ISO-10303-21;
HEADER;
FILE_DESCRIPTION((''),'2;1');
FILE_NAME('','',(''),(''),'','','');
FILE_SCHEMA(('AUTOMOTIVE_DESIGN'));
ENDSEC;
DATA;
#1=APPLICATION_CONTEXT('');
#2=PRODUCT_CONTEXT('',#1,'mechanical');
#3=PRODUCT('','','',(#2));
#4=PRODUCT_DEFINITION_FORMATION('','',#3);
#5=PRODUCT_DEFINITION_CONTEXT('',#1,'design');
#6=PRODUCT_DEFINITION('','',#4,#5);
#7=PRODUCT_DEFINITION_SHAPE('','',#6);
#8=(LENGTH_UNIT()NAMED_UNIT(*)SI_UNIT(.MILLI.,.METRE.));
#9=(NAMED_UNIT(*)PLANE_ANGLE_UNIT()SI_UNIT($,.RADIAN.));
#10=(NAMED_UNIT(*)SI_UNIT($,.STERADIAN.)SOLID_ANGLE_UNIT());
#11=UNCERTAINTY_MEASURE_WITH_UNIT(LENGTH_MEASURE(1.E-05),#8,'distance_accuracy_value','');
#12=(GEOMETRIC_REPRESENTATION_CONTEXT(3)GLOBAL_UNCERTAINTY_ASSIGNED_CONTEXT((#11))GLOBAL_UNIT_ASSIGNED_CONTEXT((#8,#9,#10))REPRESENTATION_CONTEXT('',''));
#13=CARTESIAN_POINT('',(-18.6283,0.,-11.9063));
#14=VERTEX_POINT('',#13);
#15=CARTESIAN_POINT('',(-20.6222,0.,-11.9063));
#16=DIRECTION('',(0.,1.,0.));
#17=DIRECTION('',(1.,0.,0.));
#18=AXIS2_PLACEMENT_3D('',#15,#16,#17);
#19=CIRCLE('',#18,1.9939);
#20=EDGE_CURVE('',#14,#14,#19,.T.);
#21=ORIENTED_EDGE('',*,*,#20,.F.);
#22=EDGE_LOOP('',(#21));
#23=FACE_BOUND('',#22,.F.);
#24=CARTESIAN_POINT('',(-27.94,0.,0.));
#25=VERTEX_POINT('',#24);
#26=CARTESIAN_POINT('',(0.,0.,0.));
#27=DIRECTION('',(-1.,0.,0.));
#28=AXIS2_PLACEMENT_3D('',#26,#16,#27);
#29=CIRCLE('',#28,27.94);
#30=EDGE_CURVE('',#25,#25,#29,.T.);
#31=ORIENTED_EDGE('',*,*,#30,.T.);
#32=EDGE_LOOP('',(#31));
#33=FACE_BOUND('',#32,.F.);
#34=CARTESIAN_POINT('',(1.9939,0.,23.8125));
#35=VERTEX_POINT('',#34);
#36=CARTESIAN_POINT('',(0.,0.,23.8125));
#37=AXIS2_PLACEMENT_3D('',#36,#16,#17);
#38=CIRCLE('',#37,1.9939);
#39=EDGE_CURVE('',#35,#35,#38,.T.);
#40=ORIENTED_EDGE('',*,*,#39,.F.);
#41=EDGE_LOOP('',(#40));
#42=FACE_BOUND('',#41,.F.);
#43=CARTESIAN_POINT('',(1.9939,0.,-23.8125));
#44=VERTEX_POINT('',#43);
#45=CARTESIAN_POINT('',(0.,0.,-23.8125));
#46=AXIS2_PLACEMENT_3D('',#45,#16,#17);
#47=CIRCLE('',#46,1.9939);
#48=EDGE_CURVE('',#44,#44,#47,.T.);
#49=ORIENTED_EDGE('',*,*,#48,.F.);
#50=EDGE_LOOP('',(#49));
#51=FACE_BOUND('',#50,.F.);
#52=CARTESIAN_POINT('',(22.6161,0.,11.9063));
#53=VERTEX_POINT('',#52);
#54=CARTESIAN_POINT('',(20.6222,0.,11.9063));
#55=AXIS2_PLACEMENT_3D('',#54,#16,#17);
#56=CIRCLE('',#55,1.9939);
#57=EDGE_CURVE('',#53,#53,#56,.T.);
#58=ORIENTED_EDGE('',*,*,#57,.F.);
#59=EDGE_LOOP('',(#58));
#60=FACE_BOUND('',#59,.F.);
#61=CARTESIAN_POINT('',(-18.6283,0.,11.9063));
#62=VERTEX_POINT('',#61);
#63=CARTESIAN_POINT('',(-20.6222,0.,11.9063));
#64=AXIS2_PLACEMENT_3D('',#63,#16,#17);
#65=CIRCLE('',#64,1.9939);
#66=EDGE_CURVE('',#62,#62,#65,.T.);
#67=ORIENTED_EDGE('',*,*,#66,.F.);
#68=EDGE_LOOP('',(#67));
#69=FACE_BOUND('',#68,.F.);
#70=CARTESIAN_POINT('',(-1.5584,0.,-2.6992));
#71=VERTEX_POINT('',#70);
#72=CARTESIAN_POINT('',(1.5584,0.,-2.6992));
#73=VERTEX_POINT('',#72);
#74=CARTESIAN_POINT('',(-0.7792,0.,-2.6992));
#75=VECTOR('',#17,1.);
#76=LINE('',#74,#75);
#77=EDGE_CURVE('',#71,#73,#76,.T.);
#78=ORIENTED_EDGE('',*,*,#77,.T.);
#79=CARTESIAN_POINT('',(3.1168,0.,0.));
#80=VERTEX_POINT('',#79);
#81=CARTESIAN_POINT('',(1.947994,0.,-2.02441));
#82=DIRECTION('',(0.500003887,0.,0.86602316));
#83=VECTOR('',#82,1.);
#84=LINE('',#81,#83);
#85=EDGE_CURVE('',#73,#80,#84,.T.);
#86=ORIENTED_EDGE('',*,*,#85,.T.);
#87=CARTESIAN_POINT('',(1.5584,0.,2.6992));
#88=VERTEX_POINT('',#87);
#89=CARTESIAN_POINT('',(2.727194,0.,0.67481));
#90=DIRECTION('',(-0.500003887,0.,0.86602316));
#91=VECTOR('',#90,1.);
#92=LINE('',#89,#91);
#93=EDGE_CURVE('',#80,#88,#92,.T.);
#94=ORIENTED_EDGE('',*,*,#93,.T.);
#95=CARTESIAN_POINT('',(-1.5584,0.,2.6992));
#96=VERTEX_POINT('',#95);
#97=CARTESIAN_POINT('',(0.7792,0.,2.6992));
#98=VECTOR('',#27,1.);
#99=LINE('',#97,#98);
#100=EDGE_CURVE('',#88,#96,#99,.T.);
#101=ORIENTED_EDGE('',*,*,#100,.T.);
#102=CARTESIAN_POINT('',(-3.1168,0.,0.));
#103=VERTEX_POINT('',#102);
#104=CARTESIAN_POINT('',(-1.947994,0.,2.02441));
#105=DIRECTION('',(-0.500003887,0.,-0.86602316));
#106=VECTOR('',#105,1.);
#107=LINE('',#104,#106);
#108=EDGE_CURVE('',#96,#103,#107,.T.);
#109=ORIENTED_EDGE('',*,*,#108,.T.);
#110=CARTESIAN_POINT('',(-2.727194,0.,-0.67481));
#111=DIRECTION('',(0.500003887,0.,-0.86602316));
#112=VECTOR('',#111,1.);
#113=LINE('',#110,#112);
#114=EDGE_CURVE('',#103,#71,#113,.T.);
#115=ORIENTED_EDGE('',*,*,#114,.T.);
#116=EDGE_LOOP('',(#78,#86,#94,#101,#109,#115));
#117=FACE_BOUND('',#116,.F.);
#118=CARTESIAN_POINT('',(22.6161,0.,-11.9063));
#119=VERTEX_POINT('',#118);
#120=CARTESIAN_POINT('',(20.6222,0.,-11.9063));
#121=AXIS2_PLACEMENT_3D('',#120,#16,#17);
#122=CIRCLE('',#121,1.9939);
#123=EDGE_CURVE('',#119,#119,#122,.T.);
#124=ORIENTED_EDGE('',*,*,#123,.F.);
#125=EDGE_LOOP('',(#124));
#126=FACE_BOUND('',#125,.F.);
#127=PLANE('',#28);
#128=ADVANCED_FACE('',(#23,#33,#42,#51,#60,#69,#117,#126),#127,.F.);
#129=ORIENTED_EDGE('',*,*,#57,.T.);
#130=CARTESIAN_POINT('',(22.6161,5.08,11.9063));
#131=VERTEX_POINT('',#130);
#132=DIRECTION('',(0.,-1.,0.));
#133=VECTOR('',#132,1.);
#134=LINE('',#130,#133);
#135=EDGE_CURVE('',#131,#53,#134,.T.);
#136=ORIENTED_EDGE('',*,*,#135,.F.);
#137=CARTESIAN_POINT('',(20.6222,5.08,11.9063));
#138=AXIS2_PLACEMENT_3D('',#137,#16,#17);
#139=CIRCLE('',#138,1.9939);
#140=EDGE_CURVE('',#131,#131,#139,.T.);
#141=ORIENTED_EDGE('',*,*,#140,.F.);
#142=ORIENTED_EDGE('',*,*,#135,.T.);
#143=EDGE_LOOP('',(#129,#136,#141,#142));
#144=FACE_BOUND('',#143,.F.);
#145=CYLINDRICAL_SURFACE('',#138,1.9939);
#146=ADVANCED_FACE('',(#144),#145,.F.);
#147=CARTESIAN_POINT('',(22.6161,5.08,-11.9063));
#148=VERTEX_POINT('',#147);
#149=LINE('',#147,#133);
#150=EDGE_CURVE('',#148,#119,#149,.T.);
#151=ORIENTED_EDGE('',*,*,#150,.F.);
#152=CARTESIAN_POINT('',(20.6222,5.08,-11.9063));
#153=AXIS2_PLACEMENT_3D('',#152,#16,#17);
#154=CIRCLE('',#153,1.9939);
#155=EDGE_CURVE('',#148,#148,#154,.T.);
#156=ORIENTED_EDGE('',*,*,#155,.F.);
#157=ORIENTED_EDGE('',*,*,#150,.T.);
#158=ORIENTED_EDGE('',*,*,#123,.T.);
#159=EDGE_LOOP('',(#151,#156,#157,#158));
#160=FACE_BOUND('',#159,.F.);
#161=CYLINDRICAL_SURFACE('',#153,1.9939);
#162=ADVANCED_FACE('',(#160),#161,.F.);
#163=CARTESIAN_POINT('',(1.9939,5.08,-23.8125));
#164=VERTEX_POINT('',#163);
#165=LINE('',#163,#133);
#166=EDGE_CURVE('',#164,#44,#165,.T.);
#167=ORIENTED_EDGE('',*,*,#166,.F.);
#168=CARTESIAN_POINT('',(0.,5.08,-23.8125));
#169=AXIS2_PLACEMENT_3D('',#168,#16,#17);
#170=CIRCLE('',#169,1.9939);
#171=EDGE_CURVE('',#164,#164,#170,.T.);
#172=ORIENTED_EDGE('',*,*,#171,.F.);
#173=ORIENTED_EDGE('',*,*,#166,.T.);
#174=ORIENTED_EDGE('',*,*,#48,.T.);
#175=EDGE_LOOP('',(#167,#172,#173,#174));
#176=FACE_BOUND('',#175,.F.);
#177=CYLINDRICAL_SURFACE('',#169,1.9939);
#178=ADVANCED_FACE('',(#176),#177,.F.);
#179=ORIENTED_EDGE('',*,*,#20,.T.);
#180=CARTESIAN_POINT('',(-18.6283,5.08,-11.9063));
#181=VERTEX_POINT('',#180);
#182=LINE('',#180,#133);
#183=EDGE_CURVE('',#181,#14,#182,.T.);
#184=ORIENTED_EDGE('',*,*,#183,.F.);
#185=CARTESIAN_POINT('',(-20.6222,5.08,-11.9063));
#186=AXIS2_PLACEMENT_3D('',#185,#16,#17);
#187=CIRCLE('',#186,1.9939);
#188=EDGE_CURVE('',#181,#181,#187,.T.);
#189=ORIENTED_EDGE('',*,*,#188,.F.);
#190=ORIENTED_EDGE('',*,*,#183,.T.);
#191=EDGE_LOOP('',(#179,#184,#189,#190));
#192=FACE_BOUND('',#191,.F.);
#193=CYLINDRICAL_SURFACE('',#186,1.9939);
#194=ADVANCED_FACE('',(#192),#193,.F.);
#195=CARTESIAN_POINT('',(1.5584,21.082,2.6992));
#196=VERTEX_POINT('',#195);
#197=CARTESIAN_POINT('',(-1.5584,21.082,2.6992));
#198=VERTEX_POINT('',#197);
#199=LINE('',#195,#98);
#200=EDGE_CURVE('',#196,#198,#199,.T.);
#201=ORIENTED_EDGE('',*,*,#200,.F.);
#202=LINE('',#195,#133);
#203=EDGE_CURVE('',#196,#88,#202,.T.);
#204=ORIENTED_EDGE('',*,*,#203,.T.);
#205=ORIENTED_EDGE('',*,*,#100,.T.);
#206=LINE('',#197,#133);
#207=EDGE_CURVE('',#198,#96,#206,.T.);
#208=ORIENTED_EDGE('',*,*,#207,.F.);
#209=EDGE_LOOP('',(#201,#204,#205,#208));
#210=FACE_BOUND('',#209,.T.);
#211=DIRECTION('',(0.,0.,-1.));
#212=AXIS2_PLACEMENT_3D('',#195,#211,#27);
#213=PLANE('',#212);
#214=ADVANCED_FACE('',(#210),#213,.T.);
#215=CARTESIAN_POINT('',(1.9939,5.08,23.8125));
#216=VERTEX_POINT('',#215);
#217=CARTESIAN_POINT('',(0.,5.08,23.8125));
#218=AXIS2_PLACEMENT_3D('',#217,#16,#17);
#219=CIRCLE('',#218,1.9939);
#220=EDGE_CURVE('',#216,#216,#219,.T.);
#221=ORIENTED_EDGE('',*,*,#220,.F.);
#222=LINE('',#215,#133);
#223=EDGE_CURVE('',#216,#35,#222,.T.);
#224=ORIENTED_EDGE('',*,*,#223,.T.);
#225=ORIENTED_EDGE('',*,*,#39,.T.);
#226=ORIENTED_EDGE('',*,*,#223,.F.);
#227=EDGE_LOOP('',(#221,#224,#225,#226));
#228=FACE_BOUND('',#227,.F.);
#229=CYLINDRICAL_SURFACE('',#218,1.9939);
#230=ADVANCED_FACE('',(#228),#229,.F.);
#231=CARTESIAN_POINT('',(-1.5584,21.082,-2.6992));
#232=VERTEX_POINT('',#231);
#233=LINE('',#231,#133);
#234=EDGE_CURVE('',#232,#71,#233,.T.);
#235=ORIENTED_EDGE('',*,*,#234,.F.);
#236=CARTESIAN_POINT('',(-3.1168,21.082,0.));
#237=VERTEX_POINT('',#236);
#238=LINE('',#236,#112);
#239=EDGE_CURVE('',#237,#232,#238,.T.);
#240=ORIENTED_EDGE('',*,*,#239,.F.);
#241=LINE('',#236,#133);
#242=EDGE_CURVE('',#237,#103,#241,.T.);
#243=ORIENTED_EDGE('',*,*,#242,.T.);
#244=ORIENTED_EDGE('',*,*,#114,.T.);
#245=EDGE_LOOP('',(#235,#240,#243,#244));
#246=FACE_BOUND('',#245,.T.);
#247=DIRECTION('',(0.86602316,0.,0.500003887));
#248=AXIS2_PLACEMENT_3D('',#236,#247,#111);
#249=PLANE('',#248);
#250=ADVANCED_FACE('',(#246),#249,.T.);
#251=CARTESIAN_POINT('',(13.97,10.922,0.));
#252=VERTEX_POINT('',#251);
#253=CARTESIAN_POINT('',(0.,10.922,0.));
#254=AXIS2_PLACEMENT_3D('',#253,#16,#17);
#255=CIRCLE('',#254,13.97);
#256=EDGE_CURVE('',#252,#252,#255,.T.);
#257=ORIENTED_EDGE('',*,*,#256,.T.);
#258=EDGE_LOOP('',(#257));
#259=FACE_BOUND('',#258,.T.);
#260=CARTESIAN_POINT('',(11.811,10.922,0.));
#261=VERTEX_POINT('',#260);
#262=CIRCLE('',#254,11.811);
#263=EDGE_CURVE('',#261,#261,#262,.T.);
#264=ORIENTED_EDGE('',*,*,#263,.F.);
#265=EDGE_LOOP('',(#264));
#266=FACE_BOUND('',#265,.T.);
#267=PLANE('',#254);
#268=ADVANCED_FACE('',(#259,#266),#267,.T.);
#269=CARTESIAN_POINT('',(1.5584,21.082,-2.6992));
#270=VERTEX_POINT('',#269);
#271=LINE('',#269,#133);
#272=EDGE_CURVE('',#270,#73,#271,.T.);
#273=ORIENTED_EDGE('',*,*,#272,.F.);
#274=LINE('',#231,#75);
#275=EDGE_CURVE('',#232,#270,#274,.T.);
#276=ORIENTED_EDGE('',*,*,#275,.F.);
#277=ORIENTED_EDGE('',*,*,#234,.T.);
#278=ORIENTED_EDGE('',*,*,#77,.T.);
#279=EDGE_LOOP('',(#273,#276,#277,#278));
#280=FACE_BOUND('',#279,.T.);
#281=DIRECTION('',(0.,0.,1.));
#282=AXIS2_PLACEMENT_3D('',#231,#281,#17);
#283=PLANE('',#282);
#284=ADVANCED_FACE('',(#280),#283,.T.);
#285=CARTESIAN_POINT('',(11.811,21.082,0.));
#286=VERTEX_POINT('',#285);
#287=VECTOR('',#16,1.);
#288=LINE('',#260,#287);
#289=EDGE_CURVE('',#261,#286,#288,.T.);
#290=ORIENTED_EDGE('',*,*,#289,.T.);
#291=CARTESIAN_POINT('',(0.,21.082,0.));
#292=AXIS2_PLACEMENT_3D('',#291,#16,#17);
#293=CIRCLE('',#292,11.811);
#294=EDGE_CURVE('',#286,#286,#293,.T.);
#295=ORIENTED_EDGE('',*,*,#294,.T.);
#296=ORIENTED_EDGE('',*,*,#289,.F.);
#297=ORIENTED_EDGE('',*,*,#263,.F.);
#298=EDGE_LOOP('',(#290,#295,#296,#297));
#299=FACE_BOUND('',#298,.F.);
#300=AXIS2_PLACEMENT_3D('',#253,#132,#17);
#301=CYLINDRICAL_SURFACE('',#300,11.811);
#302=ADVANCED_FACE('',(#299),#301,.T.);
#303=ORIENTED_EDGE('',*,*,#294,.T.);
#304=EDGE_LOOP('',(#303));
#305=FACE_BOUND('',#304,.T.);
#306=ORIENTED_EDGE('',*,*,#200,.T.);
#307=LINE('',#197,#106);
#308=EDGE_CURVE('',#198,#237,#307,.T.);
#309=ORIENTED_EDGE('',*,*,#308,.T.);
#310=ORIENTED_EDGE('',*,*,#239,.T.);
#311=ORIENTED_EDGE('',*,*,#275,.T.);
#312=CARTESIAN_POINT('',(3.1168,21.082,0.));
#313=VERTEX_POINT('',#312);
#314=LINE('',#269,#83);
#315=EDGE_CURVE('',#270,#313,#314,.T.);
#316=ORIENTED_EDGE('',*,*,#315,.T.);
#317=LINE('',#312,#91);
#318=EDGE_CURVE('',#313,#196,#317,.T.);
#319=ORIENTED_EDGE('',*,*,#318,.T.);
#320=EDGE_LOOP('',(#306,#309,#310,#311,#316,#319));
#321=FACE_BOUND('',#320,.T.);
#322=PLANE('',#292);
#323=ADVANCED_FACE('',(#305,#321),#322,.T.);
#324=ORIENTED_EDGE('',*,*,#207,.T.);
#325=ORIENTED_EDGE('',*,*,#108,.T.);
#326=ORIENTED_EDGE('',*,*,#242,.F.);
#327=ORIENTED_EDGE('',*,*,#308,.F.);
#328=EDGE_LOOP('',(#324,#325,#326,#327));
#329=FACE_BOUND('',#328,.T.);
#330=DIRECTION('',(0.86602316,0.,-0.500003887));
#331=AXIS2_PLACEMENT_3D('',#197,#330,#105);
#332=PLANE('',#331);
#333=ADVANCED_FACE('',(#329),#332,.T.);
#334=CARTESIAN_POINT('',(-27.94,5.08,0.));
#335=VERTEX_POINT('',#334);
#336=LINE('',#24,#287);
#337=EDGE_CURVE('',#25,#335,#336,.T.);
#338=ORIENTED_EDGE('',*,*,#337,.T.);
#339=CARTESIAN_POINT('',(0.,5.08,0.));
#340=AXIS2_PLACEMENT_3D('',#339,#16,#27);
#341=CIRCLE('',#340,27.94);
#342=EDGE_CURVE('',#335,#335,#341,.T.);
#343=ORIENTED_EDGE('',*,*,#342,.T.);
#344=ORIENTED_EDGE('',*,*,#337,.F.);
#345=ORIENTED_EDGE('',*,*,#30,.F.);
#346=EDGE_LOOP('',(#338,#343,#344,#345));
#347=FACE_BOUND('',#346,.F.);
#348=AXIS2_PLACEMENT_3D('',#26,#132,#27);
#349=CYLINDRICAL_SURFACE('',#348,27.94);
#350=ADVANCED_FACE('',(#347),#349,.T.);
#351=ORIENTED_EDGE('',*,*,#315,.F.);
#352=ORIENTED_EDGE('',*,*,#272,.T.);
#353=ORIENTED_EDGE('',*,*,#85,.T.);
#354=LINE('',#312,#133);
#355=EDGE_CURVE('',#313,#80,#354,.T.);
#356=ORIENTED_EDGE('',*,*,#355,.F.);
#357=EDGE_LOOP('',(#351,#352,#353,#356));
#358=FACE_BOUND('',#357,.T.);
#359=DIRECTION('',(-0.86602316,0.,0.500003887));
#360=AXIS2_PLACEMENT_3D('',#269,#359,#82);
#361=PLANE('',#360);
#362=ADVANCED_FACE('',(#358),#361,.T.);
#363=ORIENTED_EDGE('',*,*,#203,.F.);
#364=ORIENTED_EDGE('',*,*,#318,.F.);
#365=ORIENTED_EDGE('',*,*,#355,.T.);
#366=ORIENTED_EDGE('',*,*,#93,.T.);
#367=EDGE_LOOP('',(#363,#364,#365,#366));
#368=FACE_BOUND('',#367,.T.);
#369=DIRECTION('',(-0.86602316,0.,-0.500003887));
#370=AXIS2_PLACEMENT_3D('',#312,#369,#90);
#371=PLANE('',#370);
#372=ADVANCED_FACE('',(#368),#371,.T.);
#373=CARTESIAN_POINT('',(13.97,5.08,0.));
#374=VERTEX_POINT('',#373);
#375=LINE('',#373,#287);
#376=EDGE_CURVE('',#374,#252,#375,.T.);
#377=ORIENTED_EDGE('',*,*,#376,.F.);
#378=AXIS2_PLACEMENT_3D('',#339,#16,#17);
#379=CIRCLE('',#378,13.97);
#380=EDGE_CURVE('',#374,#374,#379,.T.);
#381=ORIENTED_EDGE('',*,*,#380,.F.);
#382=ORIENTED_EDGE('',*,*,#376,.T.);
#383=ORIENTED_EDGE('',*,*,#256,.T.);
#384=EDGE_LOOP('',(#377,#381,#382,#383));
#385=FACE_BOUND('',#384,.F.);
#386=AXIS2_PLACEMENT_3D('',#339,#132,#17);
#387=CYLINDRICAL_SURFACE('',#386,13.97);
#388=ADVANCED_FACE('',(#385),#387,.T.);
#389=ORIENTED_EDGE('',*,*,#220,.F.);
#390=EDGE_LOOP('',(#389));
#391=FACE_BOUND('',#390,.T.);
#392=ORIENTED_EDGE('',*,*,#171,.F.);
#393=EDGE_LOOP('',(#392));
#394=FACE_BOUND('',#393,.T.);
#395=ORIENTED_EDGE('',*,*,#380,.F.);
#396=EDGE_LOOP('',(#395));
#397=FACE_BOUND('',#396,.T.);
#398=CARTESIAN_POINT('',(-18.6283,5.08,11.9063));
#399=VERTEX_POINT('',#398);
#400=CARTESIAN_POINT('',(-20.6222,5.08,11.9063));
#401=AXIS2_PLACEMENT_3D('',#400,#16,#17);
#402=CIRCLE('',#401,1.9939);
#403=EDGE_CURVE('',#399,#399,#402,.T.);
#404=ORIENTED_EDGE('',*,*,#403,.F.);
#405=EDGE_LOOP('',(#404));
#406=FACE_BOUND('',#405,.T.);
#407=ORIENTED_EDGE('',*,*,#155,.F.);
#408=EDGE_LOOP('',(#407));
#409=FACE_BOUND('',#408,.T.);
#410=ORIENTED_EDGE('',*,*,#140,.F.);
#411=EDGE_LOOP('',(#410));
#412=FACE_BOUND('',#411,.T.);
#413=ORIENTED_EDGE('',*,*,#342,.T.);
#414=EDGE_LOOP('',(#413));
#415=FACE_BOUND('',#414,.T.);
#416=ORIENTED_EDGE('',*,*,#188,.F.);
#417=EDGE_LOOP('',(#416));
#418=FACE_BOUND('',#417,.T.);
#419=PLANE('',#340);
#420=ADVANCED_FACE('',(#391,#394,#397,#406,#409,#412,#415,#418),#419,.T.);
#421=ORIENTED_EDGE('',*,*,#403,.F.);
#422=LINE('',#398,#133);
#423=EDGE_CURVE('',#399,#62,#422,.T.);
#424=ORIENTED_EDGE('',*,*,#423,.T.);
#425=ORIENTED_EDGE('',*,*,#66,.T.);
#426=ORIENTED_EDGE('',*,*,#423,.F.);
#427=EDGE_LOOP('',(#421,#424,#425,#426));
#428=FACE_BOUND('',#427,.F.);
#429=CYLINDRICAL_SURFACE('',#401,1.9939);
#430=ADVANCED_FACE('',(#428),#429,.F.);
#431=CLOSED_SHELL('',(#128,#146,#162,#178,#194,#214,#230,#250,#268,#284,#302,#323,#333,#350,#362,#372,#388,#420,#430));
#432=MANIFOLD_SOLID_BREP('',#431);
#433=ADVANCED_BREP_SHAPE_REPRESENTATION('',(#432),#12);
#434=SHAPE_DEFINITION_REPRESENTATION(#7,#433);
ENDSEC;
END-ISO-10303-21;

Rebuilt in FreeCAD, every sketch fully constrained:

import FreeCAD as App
import Part
import Sketcher
Q = App.Units.Quantity


def add_polygon(sketch, points):
    """Adds a closed chain of lines whose ends are joined by coincident constraints."""
    first, n = sketch.GeometryCount, len(points)
    for a, b in zip(points, points[1:] + points[:1]):
        sketch.addGeometry(Part.LineSegment(App.Vector(*a, 0), App.Vector(*b, 0)), False)
    for i in range(n):
        sketch.addConstraint(Sketcher.Constraint("Coincident", first + i, 2, first + (i + 1) % n, 1))

doc = App.newDocument("Part")
params = doc.addObject("Spreadsheet::Sheet", "Params")
for row, (alias, value) in enumerate([
    ("sketch1_diameter", "2.2 in"),
    ("pad1_length", "0.2 in"),
    ("sketch2_diameter", "1.1 in"),
    ("pad2_length", "0.23 in"),
    ("sketch3_diameter", "0.93 in"),
    ("pad3_length", "0.4 in"),
    ("pocket1_length", "1 in"),
    ("sketch5_diameter", "0.157 in"),
    ("pocket2_length", "1 in"),
], start=1):
    params.set(f"A{row}", alias)
    params.set(f"B{row}", "=" + value)
    params.setAlias(f"B{row}", alias)

body = doc.addObject("PartDesign::Body", "Body")

# Sketch on XZ plane
sketch1 = body.newObject("Sketcher::SketchObject", "Sketch")
sketch1.AttachmentSupport = (doc.getObject("XZ_Plane"), [""])
sketch1.MapMode = "FlatFace"
sketch1.addGeometry(Part.Circle(App.Vector(0, 0, 0), App.Vector(0, 0, 1), 28), False)
sketch1.addConstraint(Sketcher.Constraint("Coincident", 0, 3, -1, 1))
sketch1.addConstraint(Sketcher.Constraint("Diameter", 0, Q("2.2 in")))
sketch1.setExpression("Constraints[1]", "Params.sketch1_diameter")
pad1 = body.newObject("PartDesign::Pad", "Pad")
pad1.Profile = sketch1
pad1.setExpression("Length", "Params.pad1_length")
pad1.Reversed = True

# Sketch on XZ plane
sketch2 = body.newObject("Sketcher::SketchObject", "Sketch001")
sketch2.AttachmentSupport = (doc.getObject("XZ_Plane"), [""])
sketch2.MapMode = "FlatFace"
sketch2.AttachmentOffset = App.Placement(App.Vector(0, 0, -0.2 * 25.4), App.Rotation())
sketch2.addGeometry(Part.Circle(App.Vector(0, 0, 0), App.Vector(0, 0, 1), 14), False)
sketch2.addConstraint(Sketcher.Constraint("Coincident", 0, 3, -1, 1))
sketch2.addConstraint(Sketcher.Constraint("Diameter", 0, Q("1.1 in")))
sketch2.setExpression("Constraints[1]", "Params.sketch2_diameter")
pad2 = body.newObject("PartDesign::Pad", "Pad001")
pad2.Profile = sketch2
pad2.setExpression("Length", "Params.pad2_length")
pad2.Reversed = True

# Sketch on XZ plane
sketch3 = body.newObject("Sketcher::SketchObject", "Sketch002")
sketch3.AttachmentSupport = (doc.getObject("XZ_Plane"), [""])
sketch3.MapMode = "FlatFace"
sketch3.AttachmentOffset = App.Placement(App.Vector(0, 0, -0.43 * 25.4), App.Rotation())
sketch3.addGeometry(Part.Circle(App.Vector(0, 0, 0), App.Vector(0, 0, 1), 12), False)
sketch3.addConstraint(Sketcher.Constraint("Coincident", 0, 3, -1, 1))
sketch3.addConstraint(Sketcher.Constraint("Diameter", 0, Q("0.93 in")))
sketch3.setExpression("Constraints[1]", "Params.sketch3_diameter")
pad3 = body.newObject("PartDesign::Pad", "Pad002")
pad3.Profile = sketch3
pad3.setExpression("Length", "Params.pad3_length")
pad3.Reversed = True

# Sketch on XZ plane
sketch4 = body.newObject("Sketcher::SketchObject", "Sketch003")
sketch4.AttachmentSupport = (doc.getObject("XZ_Plane"), [""])
sketch4.MapMode = "FlatFace"
sketch4.AttachmentOffset = App.Placement(App.Vector(0, 0, -0.83 * 25.4), App.Rotation())
add_polygon(sketch4, [(-1.6, -2.7), (-3.1, 0), (-1.6, 2.7), (1.6, 2.7), (3.1, 0), (1.6, -2.7)])  # lines 0-5
sketch4.addConstraint(Sketcher.Constraint("Horizontal", 2))
sketch4.addConstraint(Sketcher.Constraint("Horizontal", 5))
sketch4.addConstraint(Sketcher.Constraint("Symmetric", 0, 2, 3, 2, -1, 1))
sketch4.addConstraint(Sketcher.Constraint("Symmetric", 1, 2, 4, 2, -1, 1))
sketch4.addConstraint(Sketcher.Constraint("PointOnObject", 0, 2, -1))
sketch4.addConstraint(Sketcher.Constraint("Parallel", 0, 3))
sketch4.addConstraint(Sketcher.Constraint("Vertical", 2, 2, 4, 2))
sketch4.addConstraint(Sketcher.Constraint("Angle", 0, Q("120.0003 deg")))
sketch4.addConstraint(Sketcher.Constraint("DistanceX", 2, 1, 2, 2, Q("0.1227 in")))
sketch4.addConstraint(Sketcher.Constraint("Distance", 0, Q("0.1227 in")))
pocket1 = body.newObject("PartDesign::Pocket", "Pocket")
pocket1.Profile = sketch4
pocket1.setExpression("Length", "Params.pocket1_length")
pocket1.Reversed = True

# Sketch on XZ plane
sketch5 = body.newObject("Sketcher::SketchObject", "Sketch004")
sketch5.AttachmentSupport = (doc.getObject("XZ_Plane"), [""])
sketch5.MapMode = "FlatFace"
sketch5.AttachmentOffset = App.Placement(App.Vector(0, 0, -0.2 * 25.4), App.Rotation())
sketch5.addGeometry(Part.Circle(App.Vector(0, -23.8, 0), App.Vector(0, 0, 1), 2), False)
sketch5.addGeometry(Part.Circle(App.Vector(20.6, -11.9, 0), App.Vector(0, 0, 1), 2), False)
sketch5.addGeometry(Part.Circle(App.Vector(20.6, 11.9, 0), App.Vector(0, 0, 1), 2), False)
sketch5.addGeometry(Part.Circle(App.Vector(0, 23.8, 0), App.Vector(0, 0, 1), 2), False)
sketch5.addGeometry(Part.Circle(App.Vector(-20.6, 11.9, 0), App.Vector(0, 0, 1), 2), False)
sketch5.addGeometry(Part.Circle(App.Vector(-20.6, -11.9, 0), App.Vector(0, 0, 1), 2), False)
sketch5.addConstraint(Sketcher.Constraint("Equal", 0, 1))
sketch5.addConstraint(Sketcher.Constraint("Equal", 1, 2))
sketch5.addConstraint(Sketcher.Constraint("Equal", 2, 3))
sketch5.addConstraint(Sketcher.Constraint("Equal", 3, 4))
sketch5.addConstraint(Sketcher.Constraint("Equal", 4, 5))
sketch5.addConstraint(Sketcher.Constraint("Symmetric", 0, 3, 3, 3, -1, 1))
sketch5.addConstraint(Sketcher.Constraint("Symmetric", 1, 3, 4, 3, -1, 1))
sketch5.addConstraint(Sketcher.Constraint("Symmetric", 2, 3, 5, 3, -1, 1))
sketch5.addConstraint(Sketcher.Constraint("Symmetric", 2, 3, 4, 3, -2))
sketch5.addConstraint(Sketcher.Constraint("PointOnObject", 0, 3, -2))
sketch5.addConstraint(Sketcher.Constraint("Diameter", 0, Q("0.157 in")))
sketch5.addConstraint(Sketcher.Constraint("DistanceY", 0, 3, -1, 1, Q("0.9375 in")))
sketch5.addConstraint(Sketcher.Constraint("DistanceY", 1, 3, -1, 1, Q("0.468752 in")))
sketch5.addConstraint(Sketcher.Constraint("DistanceX", -1, 1, 1, 3, Q("0.8119 in")))
sketch5.setExpression("Constraints[10]", "Params.sketch5_diameter")
pocket2 = body.newObject("PartDesign::Pocket", "Pocket001")
pocket2.Profile = sketch5
pocket2.setExpression("Length", "Params.pocket2_length")
pocket2.Reversed = True

doc.recompute()
